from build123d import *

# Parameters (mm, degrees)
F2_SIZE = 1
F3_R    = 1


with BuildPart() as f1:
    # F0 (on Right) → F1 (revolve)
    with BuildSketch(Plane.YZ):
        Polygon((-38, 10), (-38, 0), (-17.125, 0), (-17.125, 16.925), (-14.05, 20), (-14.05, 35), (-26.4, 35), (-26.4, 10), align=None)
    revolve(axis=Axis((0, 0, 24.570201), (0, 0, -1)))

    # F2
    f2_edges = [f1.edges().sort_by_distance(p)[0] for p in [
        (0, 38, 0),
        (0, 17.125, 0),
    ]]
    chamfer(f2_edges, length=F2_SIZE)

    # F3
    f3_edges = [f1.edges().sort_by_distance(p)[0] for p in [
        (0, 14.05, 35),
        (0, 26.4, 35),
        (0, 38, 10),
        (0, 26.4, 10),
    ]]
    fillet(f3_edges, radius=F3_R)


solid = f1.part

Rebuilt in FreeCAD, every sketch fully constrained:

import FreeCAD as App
import Part
import Sketcher
from FreeCAD import Vector
Q = App.Units.Quantity


def edges_at(feature, points):
    """Names of the edges that pass closest to the given points."""
    edges = feature.Shape.Edges
    near = lambda p: min(range(len(edges)), key=lambda i: edges[i].distToShape(Part.Vertex(*p))[0])
    return sorted({f"Edge{near(p) + 1}" for p in points})

doc = App.newDocument("Part")
params = doc.addObject("Spreadsheet::Sheet", "Params")
for row, (alias, value) in enumerate([
    ("sketch1_height", "10 mm"),
    ("sketch1_height2", "15 mm"),
    ("sketch1_height3", "25 mm"),
    ("sketch1_width", "11.6 mm"),
    ("sketch1_width2", "12.35 mm"),
    ("revolution_angle", "360 deg"),
    ("chamfer_size", "1 mm"),
    ("fillet_radius", "1 mm"),
], start=1):
    params.set(f"A{row}", alias)
    params.set(f"B{row}", "=" + value)
    params.setAlias(f"B{row}", alias)

body = doc.addObject("PartDesign::Body", "Body")

# Sketch on YZ plane
sketch1 = doc.addObject("Sketcher::SketchObject", "Sketch")
body.addObject(sketch1)
sketch1.AttachmentSupport = (doc.YZ_Plane, [""])
sketch1.MapMode = "FlatFace"
sketch1.addGeometry([
    Part.LineSegment(Vector(-38, 10, 0), Vector(-38, 0, 0)),  # 0
    Part.LineSegment(Vector(-38, 0, 0), Vector(-17.125, 0, 0)),  # 1
    Part.LineSegment(Vector(-17.125, 0, 0), Vector(-17.125, 16.925, 0)),  # 2
    Part.LineSegment(Vector(-17.125, 16.925, 0), Vector(-14.05, 20, 0)),  # 3
    Part.LineSegment(Vector(-14.05, 20, 0), Vector(-14.05, 35, 0)),  # 4
    Part.LineSegment(Vector(-14.05, 35, 0), Vector(-26.4, 35, 0)),  # 5
    Part.LineSegment(Vector(-26.4, 35, 0), Vector(-26.4, 10, 0)),  # 6
    Part.LineSegment(Vector(-26.4, 10, 0), Vector(-38, 10, 0)),  # 7
], False)
sketch1.addConstraint([
    Sketcher.Constraint("Coincident", 0, 2, 1, 1),
    Sketcher.Constraint("Coincident", 1, 2, 2, 1),
    Sketcher.Constraint("Coincident", 2, 2, 3, 1),
    Sketcher.Constraint("Coincident", 3, 2, 4, 1),
    Sketcher.Constraint("Coincident", 4, 2, 5, 1),
    Sketcher.Constraint("Coincident", 5, 2, 6, 1),
    Sketcher.Constraint("Coincident", 6, 2, 7, 1),
    Sketcher.Constraint("Coincident", 7, 2, 0, 1),
    Sketcher.Constraint("Vertical", 0),
    Sketcher.Constraint("Horizontal", 1),
    Sketcher.Constraint("Vertical", 2),
    Sketcher.Constraint("Vertical", 4),
    Sketcher.Constraint("Horizontal", 5),
    Sketcher.Constraint("Vertical", 6),
    Sketcher.Constraint("Horizontal", 7),
    Sketcher.Constraint("PointOnObject", 0, 2, -1),
    Sketcher.Constraint("DistanceY", 0, 2, 0, 1, 10.0),
    Sketcher.Constraint("DistanceY", 4, 1, 4, 2, 15.0),
    Sketcher.Constraint("DistanceY", 6, 2, 6, 1, 25.0),
    Sketcher.Constraint("Angle", 3, Q("45 deg")),
    Sketcher.Constraint("DistanceX", 7, 2, 7, 1, 11.6),
    Sketcher.Constraint("DistanceX", 0, 2, -1, 1, 38.0),
    Sketcher.Constraint("DistanceX", 5, 2, 5, 1, 12.35),
    Sketcher.Constraint("DistanceX", 1, 1, 1, 2, 20.875),
])
sketch1.setExpression("Constraints[16]", "Params.sketch1_height")
sketch1.setExpression("Constraints[17]", "Params.sketch1_height2")
sketch1.setExpression("Constraints[18]", "Params.sketch1_height3")
sketch1.setExpression("Constraints[20]", "Params.sketch1_width")
sketch1.setExpression("Constraints[22]", "Params.sketch1_width2")
revolution = doc.addObject("PartDesign::Revolution", "Revolution")
body.addObject(revolution)
revolution.Profile = sketch1
revolution.ReferenceAxis = (sketch1, ["V_Axis"])
revolution.setExpression("Angle", "Params.revolution_angle")
doc.recompute()

chamfer = doc.addObject("PartDesign::Chamfer", "Chamfer")
body.addObject(chamfer)
chamfer.Base = (revolution, edges_at(revolution, [(0, 38, 0), (0, 17.125, 0)]))
chamfer.setExpression("Size", "Params.chamfer_size")
doc.recompute()

fillet = doc.addObject("PartDesign::Fillet", "Fillet")
body.addObject(fillet)
fillet.Base = (chamfer, edges_at(chamfer, [
    (0, 14.05, 35),
    (0, 26.4, 35),
    (0, 38, 10),
    (0, 26.4, 10),
]))
fillet.setExpression("Radius", "Params.fillet_radius")

doc.recompute()
